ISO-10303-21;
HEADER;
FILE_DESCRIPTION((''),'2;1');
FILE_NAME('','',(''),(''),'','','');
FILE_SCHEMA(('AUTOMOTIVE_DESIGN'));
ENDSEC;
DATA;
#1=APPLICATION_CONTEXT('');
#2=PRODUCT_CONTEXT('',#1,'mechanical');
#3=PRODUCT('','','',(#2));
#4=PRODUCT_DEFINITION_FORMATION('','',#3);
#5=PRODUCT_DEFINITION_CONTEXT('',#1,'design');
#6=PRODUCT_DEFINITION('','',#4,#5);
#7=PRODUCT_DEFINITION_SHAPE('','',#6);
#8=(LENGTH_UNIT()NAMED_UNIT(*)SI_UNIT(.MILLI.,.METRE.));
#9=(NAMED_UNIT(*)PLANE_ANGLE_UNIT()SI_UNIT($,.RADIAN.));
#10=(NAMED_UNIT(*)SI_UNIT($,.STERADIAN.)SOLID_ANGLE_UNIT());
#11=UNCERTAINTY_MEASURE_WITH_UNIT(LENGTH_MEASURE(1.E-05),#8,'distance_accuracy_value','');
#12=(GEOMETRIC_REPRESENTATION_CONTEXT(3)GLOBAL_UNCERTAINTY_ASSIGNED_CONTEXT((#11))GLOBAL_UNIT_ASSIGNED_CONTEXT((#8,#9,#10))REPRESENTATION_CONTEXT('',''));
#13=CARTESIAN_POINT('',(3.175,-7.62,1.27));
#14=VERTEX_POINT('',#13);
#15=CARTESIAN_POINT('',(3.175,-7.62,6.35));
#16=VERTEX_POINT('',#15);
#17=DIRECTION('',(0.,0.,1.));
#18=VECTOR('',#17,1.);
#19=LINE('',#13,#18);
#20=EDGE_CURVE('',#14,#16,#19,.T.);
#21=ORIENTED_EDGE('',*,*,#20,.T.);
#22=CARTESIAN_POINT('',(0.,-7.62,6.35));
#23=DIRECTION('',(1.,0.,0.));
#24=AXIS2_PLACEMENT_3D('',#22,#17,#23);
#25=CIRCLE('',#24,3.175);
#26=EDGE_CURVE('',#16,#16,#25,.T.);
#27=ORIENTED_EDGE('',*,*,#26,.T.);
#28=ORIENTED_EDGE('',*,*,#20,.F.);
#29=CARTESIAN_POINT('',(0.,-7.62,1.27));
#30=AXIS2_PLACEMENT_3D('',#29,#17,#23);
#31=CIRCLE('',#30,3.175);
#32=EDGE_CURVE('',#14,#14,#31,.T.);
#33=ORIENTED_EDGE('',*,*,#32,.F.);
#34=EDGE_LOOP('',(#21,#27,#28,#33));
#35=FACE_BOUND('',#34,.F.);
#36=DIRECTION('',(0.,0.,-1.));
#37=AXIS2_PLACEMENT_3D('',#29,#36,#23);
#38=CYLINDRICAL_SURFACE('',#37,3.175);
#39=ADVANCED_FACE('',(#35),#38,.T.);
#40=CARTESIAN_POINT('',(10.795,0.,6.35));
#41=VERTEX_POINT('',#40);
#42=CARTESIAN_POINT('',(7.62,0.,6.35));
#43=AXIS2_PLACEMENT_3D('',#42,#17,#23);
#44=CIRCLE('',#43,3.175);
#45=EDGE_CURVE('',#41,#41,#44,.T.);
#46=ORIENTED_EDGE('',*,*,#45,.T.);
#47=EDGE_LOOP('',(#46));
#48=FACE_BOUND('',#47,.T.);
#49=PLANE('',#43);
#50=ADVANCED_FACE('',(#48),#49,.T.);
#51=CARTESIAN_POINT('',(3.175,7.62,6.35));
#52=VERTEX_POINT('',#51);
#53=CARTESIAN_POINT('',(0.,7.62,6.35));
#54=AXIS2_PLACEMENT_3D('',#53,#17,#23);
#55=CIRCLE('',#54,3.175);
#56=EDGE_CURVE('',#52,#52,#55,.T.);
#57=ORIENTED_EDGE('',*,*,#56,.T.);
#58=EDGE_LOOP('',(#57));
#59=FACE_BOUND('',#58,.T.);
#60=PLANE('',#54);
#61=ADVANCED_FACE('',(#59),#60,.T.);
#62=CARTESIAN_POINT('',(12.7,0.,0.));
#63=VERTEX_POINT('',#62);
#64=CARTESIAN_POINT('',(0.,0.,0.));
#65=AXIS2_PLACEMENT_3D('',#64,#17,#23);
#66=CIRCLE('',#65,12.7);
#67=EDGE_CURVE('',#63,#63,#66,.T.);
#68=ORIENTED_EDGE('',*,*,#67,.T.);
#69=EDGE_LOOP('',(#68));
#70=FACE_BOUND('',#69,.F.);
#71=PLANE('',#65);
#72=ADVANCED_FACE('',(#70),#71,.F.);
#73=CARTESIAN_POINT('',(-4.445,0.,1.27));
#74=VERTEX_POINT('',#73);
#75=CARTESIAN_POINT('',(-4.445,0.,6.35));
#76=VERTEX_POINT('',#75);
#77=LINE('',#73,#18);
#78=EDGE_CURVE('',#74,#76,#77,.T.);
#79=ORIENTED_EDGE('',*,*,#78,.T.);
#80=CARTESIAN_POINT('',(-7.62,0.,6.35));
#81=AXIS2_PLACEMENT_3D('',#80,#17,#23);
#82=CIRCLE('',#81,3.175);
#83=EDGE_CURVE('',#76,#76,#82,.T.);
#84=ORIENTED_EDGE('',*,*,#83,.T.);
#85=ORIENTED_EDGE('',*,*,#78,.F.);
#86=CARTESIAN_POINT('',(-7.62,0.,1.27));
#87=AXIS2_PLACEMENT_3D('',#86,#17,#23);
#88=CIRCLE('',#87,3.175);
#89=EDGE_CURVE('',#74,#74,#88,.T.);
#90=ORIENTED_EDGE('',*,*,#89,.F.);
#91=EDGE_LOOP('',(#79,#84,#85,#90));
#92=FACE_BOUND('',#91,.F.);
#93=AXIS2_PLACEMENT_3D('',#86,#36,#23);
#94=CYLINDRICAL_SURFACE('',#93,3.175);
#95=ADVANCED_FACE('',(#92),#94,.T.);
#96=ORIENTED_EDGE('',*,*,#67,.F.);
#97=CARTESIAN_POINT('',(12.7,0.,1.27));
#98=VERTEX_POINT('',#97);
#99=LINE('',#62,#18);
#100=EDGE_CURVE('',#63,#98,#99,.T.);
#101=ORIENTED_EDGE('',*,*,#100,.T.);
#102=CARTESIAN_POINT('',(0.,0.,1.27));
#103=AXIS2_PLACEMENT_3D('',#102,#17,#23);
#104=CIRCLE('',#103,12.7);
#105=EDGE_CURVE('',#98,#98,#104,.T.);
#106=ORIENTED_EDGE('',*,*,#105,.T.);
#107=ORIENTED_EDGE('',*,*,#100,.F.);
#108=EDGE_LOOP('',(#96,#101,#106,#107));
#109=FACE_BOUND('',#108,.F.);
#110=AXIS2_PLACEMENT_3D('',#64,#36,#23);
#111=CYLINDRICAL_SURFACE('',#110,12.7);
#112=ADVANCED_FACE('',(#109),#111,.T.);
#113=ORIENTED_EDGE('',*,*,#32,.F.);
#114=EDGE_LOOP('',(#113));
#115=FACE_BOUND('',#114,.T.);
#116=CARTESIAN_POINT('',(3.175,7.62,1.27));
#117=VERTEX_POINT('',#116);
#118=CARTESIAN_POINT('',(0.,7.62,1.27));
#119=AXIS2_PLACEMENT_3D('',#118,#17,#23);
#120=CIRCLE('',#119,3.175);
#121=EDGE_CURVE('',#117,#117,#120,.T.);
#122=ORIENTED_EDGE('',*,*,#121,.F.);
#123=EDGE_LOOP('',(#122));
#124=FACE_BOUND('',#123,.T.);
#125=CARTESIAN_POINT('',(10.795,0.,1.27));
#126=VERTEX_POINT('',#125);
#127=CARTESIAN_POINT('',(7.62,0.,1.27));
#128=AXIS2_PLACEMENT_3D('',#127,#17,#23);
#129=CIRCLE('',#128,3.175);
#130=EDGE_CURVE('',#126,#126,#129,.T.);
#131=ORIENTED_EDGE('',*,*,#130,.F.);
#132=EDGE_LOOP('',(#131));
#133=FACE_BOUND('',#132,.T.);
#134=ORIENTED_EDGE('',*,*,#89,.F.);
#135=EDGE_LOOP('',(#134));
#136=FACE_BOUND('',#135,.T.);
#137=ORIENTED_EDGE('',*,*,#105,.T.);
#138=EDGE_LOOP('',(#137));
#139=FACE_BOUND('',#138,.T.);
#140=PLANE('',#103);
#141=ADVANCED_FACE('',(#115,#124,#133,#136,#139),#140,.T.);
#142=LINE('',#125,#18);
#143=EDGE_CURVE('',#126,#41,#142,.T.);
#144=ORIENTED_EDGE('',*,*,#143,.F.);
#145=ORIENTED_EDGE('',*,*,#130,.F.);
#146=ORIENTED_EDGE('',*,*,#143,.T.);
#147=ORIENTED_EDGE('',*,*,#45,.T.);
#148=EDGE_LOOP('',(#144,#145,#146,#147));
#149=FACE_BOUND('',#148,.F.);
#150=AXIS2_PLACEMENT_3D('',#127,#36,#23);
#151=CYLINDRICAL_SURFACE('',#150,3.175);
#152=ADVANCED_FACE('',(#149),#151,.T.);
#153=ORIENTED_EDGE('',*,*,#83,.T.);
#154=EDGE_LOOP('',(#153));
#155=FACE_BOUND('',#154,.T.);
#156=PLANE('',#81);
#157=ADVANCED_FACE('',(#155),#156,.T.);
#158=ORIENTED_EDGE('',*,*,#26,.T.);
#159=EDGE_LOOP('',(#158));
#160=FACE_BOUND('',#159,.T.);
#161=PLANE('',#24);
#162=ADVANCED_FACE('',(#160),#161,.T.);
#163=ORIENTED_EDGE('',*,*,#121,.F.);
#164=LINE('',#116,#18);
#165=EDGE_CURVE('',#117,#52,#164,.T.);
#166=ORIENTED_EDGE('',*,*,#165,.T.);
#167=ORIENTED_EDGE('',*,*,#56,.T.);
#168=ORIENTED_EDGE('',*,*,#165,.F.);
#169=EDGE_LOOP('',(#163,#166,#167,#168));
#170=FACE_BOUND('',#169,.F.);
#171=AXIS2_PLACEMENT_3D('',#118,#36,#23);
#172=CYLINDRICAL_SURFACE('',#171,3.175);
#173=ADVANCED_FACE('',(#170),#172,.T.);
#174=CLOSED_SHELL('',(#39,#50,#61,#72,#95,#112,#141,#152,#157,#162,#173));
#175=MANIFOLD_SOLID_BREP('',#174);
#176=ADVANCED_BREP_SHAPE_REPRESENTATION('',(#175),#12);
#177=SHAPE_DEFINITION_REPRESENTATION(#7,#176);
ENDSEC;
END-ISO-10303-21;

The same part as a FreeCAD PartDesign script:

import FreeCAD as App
import Part
import Sketcher
from FreeCAD import Vector
Q = App.Units.Quantity

doc = App.newDocument("Part")
body = doc.addObject("PartDesign::Body", "Body")

# Sketch on XY plane
sketch1 = body.newObject("Sketcher::SketchObject", "Sketch")
sketch1.AttachmentSupport = (doc.getObject("XY_Plane"), [""])
sketch1.MapMode = "FlatFace"
sketch1.addGeometry(Part.Circle(Vector(0, 0, 0), Vector(0, 0, 1), 13), False)
sketch1.addConstraint([
    Sketcher.Constraint("Coincident", 0, 3, -1, 1),
    Sketcher.Constraint("Diameter", 0, Q("1 in")),
])
pad1 = body.newObject("PartDesign::Pad", "Pad")
pad1.Profile = sketch1
pad1.Length = Q("0.05 in")

# Sketch on XY plane
sketch2 = body.newObject("Sketcher::SketchObject", "Sketch001")
sketch2.AttachmentSupport = (doc.getObject("XY_Plane"), [""])
sketch2.MapMode = "FlatFace"
sketch2.AttachmentOffset = App.Placement(Vector(0, 0, 0.05 * 25.4), App.Rotation())
sketch2.addGeometry([
    Part.Circle(Vector(0, 7.6, 0), Vector(0, 0, 1), 3.2),
    Part.Circle(Vector(7.6, 0, 0), Vector(0, 0, 1), 3.2),
    Part.Circle(Vector(0, -7.6, 0), Vector(0, 0, 1), 3.2),
    Part.Circle(Vector(-7.6, 0, 0), Vector(0, 0, 1), 3.2),
], False)
sketch2.addConstraint([
    Sketcher.Constraint("Equal", 0, 1),
    Sketcher.Constraint("Equal", 1, 2),
    Sketcher.Constraint("Equal", 2, 3),
    Sketcher.Constraint("Symmetric", 0, 3, 2, 3, -1, 1),
    Sketcher.Constraint("Symmetric", 1, 3, 3, 3, -1, 1),
    Sketcher.Constraint("PointOnObject", 0, 3, -2),
    Sketcher.Constraint("PointOnObject", 1, 3, -1),
    Sketcher.Constraint("Diameter", 0, Q("0.25 in")),
    Sketcher.Constraint("DistanceY", -1, 1, 0, 3, Q("0.3 in")),
    Sketcher.Constraint("DistanceX", -1, 1, 1, 3, Q("0.3 in")),
])
pad2 = body.newObject("PartDesign::Pad", "Pad001")
pad2.Profile = sketch2
pad2.Length = Q("0.2 in")

doc.recompute()
